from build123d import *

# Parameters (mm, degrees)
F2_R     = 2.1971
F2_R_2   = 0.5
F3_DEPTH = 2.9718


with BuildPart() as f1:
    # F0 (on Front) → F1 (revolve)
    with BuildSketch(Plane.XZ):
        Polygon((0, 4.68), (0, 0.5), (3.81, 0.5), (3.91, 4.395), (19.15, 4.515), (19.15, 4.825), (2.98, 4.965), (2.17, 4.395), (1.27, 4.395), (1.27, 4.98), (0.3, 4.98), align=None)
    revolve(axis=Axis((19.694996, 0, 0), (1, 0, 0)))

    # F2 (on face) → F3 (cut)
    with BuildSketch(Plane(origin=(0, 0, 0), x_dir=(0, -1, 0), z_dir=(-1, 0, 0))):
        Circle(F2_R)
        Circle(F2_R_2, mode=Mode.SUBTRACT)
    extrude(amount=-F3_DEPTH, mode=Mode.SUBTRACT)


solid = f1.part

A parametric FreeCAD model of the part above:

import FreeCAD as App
import Part
import Sketcher
from FreeCAD import Vector
Q = App.Units.Quantity


def add_polygon(sketch, points):
    """Adds a closed chain of lines whose ends are joined by coincident constraints."""
    first, n = sketch.GeometryCount, len(points)
    for a, b in zip(points, points[1:] + points[:1]):
        sketch.addGeometry(Part.LineSegment(App.Vector(*a, 0), App.Vector(*b, 0)), False)
    for i in range(n):
        sketch.addConstraint(Sketcher.Constraint("Coincident", first + i, 2, first + (i + 1) % n, 1))

doc = App.newDocument("Part")
body = doc.addObject("PartDesign::Body", "Body")

# Sketch on XZ plane
sketch1 = body.newObject("Sketcher::SketchObject", "Sketch")
sketch1.AttachmentSupport = (doc.getObject("XZ_Plane"), [""])
sketch1.MapMode = "FlatFace"
add_polygon(sketch1, [(0, 4.68), (0, 0.5), (3.81, 0.5), (3.91, 4.39), (19.15, 4.51), (19.15, 4.83), (2.98, 4.96), (2.17, 4.39), (1.27, 4.39), (1.27, 4.98), (0.3, 4.98)])  # lines 0-10
sketch1.addConstraint(Sketcher.Constraint("Vertical", 0))
sketch1.addConstraint(Sketcher.Constraint("Horizontal", 1))
sketch1.addConstraint(Sketcher.Constraint("Vertical", 4))
sketch1.addConstraint(Sketcher.Constraint("Horizontal", 7))
sketch1.addConstraint(Sketcher.Constraint("Vertical", 8))
sketch1.addConstraint(Sketcher.Constraint("Horizontal", 9))
sketch1.addConstraint(Sketcher.Constraint("PointOnObject", 0, 2, -2))
sketch1.addConstraint(Sketcher.Constraint("Horizontal", 2, 2, 6, 2))
sketch1.addConstraint(Sketcher.Constraint("Angle", 10, Q("-135 deg")))
sketch1.addConstraint(Sketcher.Constraint("DistanceX", 1, 1, 1, 2, Q("0.15 in")))
sketch1.addConstraint(Sketcher.Constraint("DistanceX", 2, 2, 3, 2, Q("0.6 in")))
sketch1.addConstraint(Sketcher.Constraint("DistanceX", 7, 2, 1, 2, Q("0.1 in")))
sketch1.addConstraint(Sketcher.Constraint("DistanceX", 7, 2, 7, 1, Q("0.9 mm")))
sketch1.addConstraint(Sketcher.Constraint("DistanceX", 9, 2, 9, 1, Q("0.97 mm")))
sketch1.addConstraint(Sketcher.Constraint("DistanceY", 0, 2, 0, 1, Q("4.18 mm")))
sketch1.addConstraint(Sketcher.Constraint("DistanceY", 4, 1, 4, 2, Q("0.31 mm")))
sketch1.addConstraint(Sketcher.Constraint("DistanceY", 8, 1, 8, 2, Q("0.585 mm")))
sketch1.addConstraint(Sketcher.Constraint("DistanceY", -1, 1, 0, 2, Q("0.5 mm")))
sketch1.addConstraint(Sketcher.Constraint("DistanceX", -1, 1, 2, 2, Q("3.91 mm")))
sketch1.addConstraint(Sketcher.Constraint("DistanceY", -1, 1, 3, 2, Q("4.515 mm")))
sketch1.addConstraint(Sketcher.Constraint("DistanceX", -1, 1, 5, 2, Q("2.98 mm")))
sketch1.addConstraint(Sketcher.Constraint("DistanceY", -1, 1, 5, 2, Q("4.965 mm")))
revolution = body.newObject("PartDesign::Revolution", "Revolution")
revolution.Profile = sketch1
revolution.ReferenceAxis = (sketch1, ["H_Axis"])
revolution.Angle = 360

# Sketch on YZ plane
sketch2 = body.newObject("Sketcher::SketchObject", "Sketch001")
sketch2.AttachmentSupport = (doc.getObject("YZ_Plane"), [""])
sketch2.MapMode = "FlatFace"
sketch2.addGeometry(Part.Circle(Vector(0, 0, 0), Vector(0, 0, 1), 2.2), False)
sketch2.addGeometry(Part.Circle(Vector(0, 0, 0), Vector(0, 0, 1), 0.5), False)
sketch2.addConstraint(Sketcher.Constraint("Coincident", 0, 3, -1, 1))
sketch2.addConstraint(Sketcher.Constraint("Coincident", 1, 3, -1, 1))
sketch2.addConstraint(Sketcher.Constraint("Diameter", 0, Q("0.173 in")))
sketch2.addConstraint(Sketcher.Constraint("Diameter", 1, Q("1 mm")))
pocket1 = body.newObject("PartDesign::Pocket", "Pocket")
pocket1.Profile = sketch2
pocket1.Length = Q("0.117 in")
pocket1.Reversed = True

doc.recompute()
